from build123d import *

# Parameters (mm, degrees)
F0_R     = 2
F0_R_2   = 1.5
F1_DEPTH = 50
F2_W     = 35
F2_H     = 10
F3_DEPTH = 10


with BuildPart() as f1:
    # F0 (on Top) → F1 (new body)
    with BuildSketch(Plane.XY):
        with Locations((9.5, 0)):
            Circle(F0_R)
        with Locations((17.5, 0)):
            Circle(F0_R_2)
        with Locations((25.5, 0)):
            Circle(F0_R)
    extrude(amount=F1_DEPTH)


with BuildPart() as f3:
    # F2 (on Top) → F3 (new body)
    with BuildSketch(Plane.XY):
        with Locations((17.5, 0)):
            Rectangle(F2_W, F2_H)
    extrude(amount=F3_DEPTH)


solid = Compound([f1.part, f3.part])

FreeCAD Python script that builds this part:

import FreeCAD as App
import Part
import Sketcher
Q = App.Units.Quantity

doc = App.newDocument("Part")
params = doc.addObject("Spreadsheet::Sheet", "Params")
for row, (alias, value) in enumerate([
    ("sketch1_diameter", "4 mm"),
    ("sketch1_diameter2", "3 mm"),
    ("pad1_length", "50 mm"),
    ("sketch2_width", "35 mm"),
    ("sketch2_height", "10 mm"),
    ("pad2_length", "10 mm"),
], start=1):
    params.set(f"A{row}", alias)
    params.set(f"B{row}", "=" + value)
    params.setAlias(f"B{row}", alias)

body = doc.addObject("PartDesign::Body", "Body")
body.AllowCompound = True

sketch1 = body.newObject("Sketcher::SketchObject", "Sketch")
sketch1.AttachmentSupport = (doc.getObject("XY_Plane"), [""])
sketch1.MapMode = "FlatFace"
sketch1.addGeometry(Part.Circle(App.Vector(9.5, 0, 0), App.Vector(0, 0, 1), 2), False)
sketch1.addGeometry(Part.Circle(App.Vector(17.5, 0, 0), App.Vector(0, 0, 1), 1.5), False)
sketch1.addGeometry(Part.Circle(App.Vector(25.5, 0, 0), App.Vector(0, 0, 1), 2), False)
sketch1.addConstraint(Sketcher.Constraint("Equal", 0, 2))
sketch1.addConstraint(Sketcher.Constraint("PointOnObject", 0, 3, -1))
sketch1.addConstraint(Sketcher.Constraint("PointOnObject", 1, 3, -1))
sketch1.addConstraint(Sketcher.Constraint("PointOnObject", 2, 3, -1))
sketch1.addConstraint(Sketcher.Constraint("Diameter", 0, Q("4 mm")))
sketch1.addConstraint(Sketcher.Constraint("Diameter", 1, Q("3 mm")))
sketch1.addConstraint(Sketcher.Constraint("DistanceX", 0, 3, 1, 3, Q("8 mm")))
sketch1.addConstraint(Sketcher.Constraint("DistanceX", 1, 3, 2, 3, Q("8 mm")))
sketch1.addConstraint(Sketcher.Constraint("DistanceX", -1, 1, 0, 3, Q("9.5 mm")))
sketch1.setExpression("Constraints[4]", "Params.sketch1_diameter")
sketch1.setExpression("Constraints[5]", "Params.sketch1_diameter2")
pad1 = body.newObject("PartDesign::Pad", "Pad")
pad1.Profile = sketch1
pad1.setExpression("Length", "Params.pad1_length")
body2 = doc.addObject("PartDesign::Body", "Body001")

sketch2 = body2.newObject("Sketcher::SketchObject", "Sketch001")
sketch2.AttachmentSupport = (doc.getObject("XY_Plane001"), [""])
sketch2.MapMode = "FlatFace"
sketch2.addGeometry(Part.LineSegment(App.Vector(0, 5, 0), App.Vector(0, -5, 0)), False)
sketch2.addGeometry(Part.LineSegment(App.Vector(0, -5, 0), App.Vector(35, -5, 0)), False)
sketch2.addGeometry(Part.LineSegment(App.Vector(35, -5, 0), App.Vector(35, 5, 0)), False)
sketch2.addGeometry(Part.LineSegment(App.Vector(35, 5, 0), App.Vector(0, 5, 0)), False)
sketch2.addConstraint(Sketcher.Constraint("Coincident", 0, 2, 1, 1))
sketch2.addConstraint(Sketcher.Constraint("Coincident", 1, 2, 2, 1))
sketch2.addConstraint(Sketcher.Constraint("Coincident", 2, 2, 3, 1))
sketch2.addConstraint(Sketcher.Constraint("Coincident", 3, 2, 0, 1))
sketch2.addConstraint(Sketcher.Constraint("Vertical", 0))
sketch2.addConstraint(Sketcher.Constraint("Horizontal", 1))
sketch2.addConstraint(Sketcher.Constraint("Vertical", 2))
sketch2.addConstraint(Sketcher.Constraint("Horizontal", 3))
sketch2.addConstraint(Sketcher.Constraint("Symmetric", 0, 2, 3, 2, -1, 1))
sketch2.addConstraint(Sketcher.Constraint("DistanceX", 1, 1, 1, 2, Q("35 mm")))
sketch2.addConstraint(Sketcher.Constraint("DistanceY", 0, 2, 0, 1, Q("10 mm")))
sketch2.setExpression("Constraints[9]", "Params.sketch2_width")
sketch2.setExpression("Constraints[10]", "Params.sketch2_height")
pad2 = body2.newObject("PartDesign::Pad", "Pad001")
pad2.Profile = sketch2
pad2.setExpression("Length", "Params.pad2_length")

doc.recompute()
